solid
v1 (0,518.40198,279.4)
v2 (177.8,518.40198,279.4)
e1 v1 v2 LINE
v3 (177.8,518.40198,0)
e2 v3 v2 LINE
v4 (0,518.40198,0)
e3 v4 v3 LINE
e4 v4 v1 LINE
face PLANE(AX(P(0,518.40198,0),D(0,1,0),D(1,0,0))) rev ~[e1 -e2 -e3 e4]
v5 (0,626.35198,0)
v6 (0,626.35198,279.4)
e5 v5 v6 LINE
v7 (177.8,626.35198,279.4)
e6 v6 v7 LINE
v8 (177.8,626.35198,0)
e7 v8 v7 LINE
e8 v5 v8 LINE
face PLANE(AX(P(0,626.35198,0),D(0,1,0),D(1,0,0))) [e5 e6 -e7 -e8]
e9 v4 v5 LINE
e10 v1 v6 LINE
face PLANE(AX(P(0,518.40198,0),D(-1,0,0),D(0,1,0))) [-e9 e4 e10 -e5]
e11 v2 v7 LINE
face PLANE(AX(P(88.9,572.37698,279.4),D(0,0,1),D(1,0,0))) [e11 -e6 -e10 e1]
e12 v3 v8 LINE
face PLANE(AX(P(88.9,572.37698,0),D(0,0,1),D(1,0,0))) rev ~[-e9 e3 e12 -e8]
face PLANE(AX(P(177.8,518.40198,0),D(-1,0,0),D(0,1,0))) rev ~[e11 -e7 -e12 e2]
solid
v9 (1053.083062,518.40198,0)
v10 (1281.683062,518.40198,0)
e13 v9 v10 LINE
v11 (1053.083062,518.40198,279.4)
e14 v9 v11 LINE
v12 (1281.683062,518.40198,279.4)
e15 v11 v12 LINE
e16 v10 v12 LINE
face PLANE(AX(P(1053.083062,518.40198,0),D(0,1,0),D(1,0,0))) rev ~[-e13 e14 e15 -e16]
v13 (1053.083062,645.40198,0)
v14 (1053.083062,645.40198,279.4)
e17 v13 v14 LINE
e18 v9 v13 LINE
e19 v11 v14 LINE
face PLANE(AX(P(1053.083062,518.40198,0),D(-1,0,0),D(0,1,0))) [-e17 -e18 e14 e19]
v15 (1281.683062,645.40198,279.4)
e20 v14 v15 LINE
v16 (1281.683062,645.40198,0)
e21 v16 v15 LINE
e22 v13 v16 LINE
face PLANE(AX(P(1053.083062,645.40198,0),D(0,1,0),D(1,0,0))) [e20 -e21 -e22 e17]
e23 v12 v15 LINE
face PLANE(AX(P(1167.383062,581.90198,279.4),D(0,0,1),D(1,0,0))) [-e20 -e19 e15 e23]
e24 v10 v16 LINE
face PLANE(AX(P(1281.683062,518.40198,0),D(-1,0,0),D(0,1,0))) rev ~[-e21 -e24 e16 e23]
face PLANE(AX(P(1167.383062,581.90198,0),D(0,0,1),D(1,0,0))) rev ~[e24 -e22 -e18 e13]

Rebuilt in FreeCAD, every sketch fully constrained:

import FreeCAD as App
import Part
import Sketcher

V = App.Vector
Q = App.Units.Quantity

doc = App.newDocument("Part")
body = doc.addObject("PartDesign::Body", "Body")
body.AllowCompound = True

sketch1 = body.newObject("Sketcher::SketchObject", "Sketch")
sketch1.AttachmentSupport = (doc.getObject("XY_Plane"), [""])
sketch1.MapMode = "FlatFace"
sketch1.addGeometry([
    Part.LineSegment(V(0, 626.35198, 0), V(0, 518.40198, 0)),
    Part.LineSegment(V(0, 518.40198, 0), V(177.8, 518.40198, 0)),
    Part.LineSegment(V(177.8, 518.40198, 0), V(177.8, 626.35198, 0)),
    Part.LineSegment(V(177.8, 626.35198, 0), V(0, 626.35198, 0)),
    Part.LineSegment(V(1053.083062, 645.40198, 0), V(1053.083062, 518.40198, 0)),
    Part.LineSegment(V(1053.083062, 518.40198, 0), V(1281.683062, 518.40198, 0)),
    Part.LineSegment(V(1281.683062, 518.40198, 0), V(1281.683062, 645.40198, 0)),
    Part.LineSegment(V(1281.683062, 645.40198, 0), V(1053.083062, 645.40198, 0)),
], False)
sketch1.addConstraint([
    Sketcher.Constraint("Coincident", 0, 2, 1, 1),
    Sketcher.Constraint("Coincident", 1, 2, 2, 1),
    Sketcher.Constraint("Coincident", 2, 2, 3, 1),
    Sketcher.Constraint("Coincident", 3, 2, 0, 1),
    Sketcher.Constraint("Coincident", 4, 2, 5, 1),
    Sketcher.Constraint("Coincident", 5, 2, 6, 1),
    Sketcher.Constraint("Coincident", 6, 2, 7, 1),
    Sketcher.Constraint("Coincident", 7, 2, 4, 1),
    Sketcher.Constraint("Vertical", 0),
    Sketcher.Constraint("Horizontal", 1),
    Sketcher.Constraint("Vertical", 2),
    Sketcher.Constraint("Horizontal", 3),
    Sketcher.Constraint("Vertical", 4),
    Sketcher.Constraint("Horizontal", 5),
    Sketcher.Constraint("Vertical", 6),
    Sketcher.Constraint("Horizontal", 7),
    Sketcher.Constraint("PointOnObject", 0, 2, -2),
    Sketcher.Constraint("Horizontal", 1, 2, 4, 2),
    Sketcher.Constraint("DistanceX", 1, 1, 1, 2, Q("7 in")),
    Sketcher.Constraint("DistanceX", 5, 1, 5, 2, Q("9 in")),
    Sketcher.Constraint("DistanceY", 4, 2, 4, 1, Q("5 in")),
    Sketcher.Constraint("DistanceY", 0, 2, 0, 1, Q("4.25 in")),
    Sketcher.Constraint("DistanceY", -1, 1, 0, 2, Q("518.40198 mm")),
    Sketcher.Constraint("DistanceX", -1, 1, 4, 2, Q("1053.083062 mm")),
])
pad1 = body.newObject("PartDesign::Pad", "Pad")
pad1.Profile = sketch1
pad1.Length = Q("11 in")

doc.recompute()
